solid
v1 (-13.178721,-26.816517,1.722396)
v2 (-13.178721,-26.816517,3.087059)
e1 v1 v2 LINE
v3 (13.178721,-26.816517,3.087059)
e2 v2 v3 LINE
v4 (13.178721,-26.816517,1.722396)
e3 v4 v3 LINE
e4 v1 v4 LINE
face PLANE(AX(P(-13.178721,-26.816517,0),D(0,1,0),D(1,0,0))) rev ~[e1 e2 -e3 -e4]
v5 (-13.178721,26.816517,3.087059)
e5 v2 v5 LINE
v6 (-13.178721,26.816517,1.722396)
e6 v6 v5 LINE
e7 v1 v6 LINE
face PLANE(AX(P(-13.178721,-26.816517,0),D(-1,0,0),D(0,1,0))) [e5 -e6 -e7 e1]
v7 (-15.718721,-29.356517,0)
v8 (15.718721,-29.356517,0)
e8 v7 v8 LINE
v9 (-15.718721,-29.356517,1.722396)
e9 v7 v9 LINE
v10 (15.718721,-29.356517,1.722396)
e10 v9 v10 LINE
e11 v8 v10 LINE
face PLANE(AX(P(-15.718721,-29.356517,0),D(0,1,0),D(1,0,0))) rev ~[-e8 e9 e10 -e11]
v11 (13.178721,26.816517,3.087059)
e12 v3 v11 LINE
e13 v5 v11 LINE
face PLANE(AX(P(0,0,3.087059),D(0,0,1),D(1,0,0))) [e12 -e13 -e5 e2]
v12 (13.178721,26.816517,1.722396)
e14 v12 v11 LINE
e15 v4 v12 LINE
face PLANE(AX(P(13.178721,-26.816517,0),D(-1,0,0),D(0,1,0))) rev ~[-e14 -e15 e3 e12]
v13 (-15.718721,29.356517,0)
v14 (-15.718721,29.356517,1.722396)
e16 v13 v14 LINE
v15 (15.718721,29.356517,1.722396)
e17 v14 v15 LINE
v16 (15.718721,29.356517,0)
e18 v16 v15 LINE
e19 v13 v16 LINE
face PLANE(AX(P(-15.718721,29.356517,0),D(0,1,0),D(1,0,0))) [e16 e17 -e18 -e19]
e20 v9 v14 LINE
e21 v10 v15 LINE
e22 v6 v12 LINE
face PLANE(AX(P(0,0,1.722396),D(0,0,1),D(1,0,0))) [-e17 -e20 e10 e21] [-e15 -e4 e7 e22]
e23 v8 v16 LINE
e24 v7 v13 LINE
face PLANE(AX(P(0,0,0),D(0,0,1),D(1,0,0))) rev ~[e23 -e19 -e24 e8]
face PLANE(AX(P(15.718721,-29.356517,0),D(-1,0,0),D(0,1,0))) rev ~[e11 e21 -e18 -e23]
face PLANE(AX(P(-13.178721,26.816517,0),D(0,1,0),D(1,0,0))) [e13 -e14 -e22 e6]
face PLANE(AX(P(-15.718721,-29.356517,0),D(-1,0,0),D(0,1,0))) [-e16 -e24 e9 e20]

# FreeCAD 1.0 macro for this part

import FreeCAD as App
import Part
import Sketcher

V = App.Vector

doc = App.newDocument("Part")
body = doc.addObject("PartDesign::Body", "Body")

# Sketch on XY plane
sketch1 = body.newObject("Sketcher::SketchObject", "Sketch")
sketch1.AttachmentSupport = (doc.getObject("XY_Plane"), [""])
sketch1.MapMode = "FlatFace"
sketch1.addGeometry(Part.LineSegment(V(-13, 27, 0), V(-13, -27, 0)), False)
sketch1.addGeometry(Part.LineSegment(V(-13, -27, 0), V(13, -27, 0)), False)
sketch1.addGeometry(Part.LineSegment(V(13, -27, 0), V(13, 27, 0)), False)
sketch1.addGeometry(Part.LineSegment(V(13, 27, 0), V(-13, 27, 0)), False)
sketch1.addConstraint(Sketcher.Constraint("Coincident", 0, 2, 1, 1))
sketch1.addConstraint(Sketcher.Constraint("Coincident", 1, 2, 2, 1))
sketch1.addConstraint(Sketcher.Constraint("Coincident", 2, 2, 3, 1))
sketch1.addConstraint(Sketcher.Constraint("Coincident", 3, 2, 0, 1))
sketch1.addConstraint(Sketcher.Constraint("Vertical", 0))
sketch1.addConstraint(Sketcher.Constraint("Horizontal", 1))
sketch1.addConstraint(Sketcher.Constraint("Vertical", 2))
sketch1.addConstraint(Sketcher.Constraint("Horizontal", 3))
sketch1.addConstraint(Sketcher.Constraint("Symmetric", 0, 2, 2, 2, -1, 1))
sketch1.addConstraint(Sketcher.Constraint("DistanceX", 1, 1, 1, 2, 26.357442))
sketch1.addConstraint(Sketcher.Constraint("DistanceY", 0, 2, 0, 1, 53.633034))
pad1 = body.newObject("PartDesign::Pad", "Pad")
pad1.Profile = sketch1
pad1.Length = 3.087059

# Sketch on XY plane
sketch2 = body.newObject("Sketcher::SketchObject", "Sketch001")
sketch2.AttachmentSupport = (doc.getObject("XY_Plane"), [""])
sketch2.MapMode = "FlatFace"
sketch2.addGeometry(Part.LineSegment(V(-16, 29, 0), V(-16, -29, 0)), False)
sketch2.addGeometry(Part.LineSegment(V(-16, -29, 0), V(16, -29, 0)), False)
sketch2.addGeometry(Part.LineSegment(V(16, -29, 0), V(16, 29, 0)), False)
sketch2.addGeometry(Part.LineSegment(V(16, 29, 0), V(-16, 29, 0)), False)
sketch2.addConstraint(Sketcher.Constraint("Coincident", 0, 2, 1, 1))
sketch2.addConstraint(Sketcher.Constraint("Coincident", 1, 2, 2, 1))
sketch2.addConstraint(Sketcher.Constraint("Coincident", 2, 2, 3, 1))
sketch2.addConstraint(Sketcher.Constraint("Coincident", 3, 2, 0, 1))
sketch2.addConstraint(Sketcher.Constraint("Vertical", 0))
sketch2.addConstraint(Sketcher.Constraint("Horizontal", 1))
sketch2.addConstraint(Sketcher.Constraint("Vertical", 2))
sketch2.addConstraint(Sketcher.Constraint("Horizontal", 3))
sketch2.addConstraint(Sketcher.Constraint("Symmetric", 0, 2, 2, 2, -1, 1))
sketch2.addConstraint(Sketcher.Constraint("DistanceX", 1, 1, 1, 2, 31.437442))
sketch2.addConstraint(Sketcher.Constraint("DistanceY", 0, 2, 0, 1, 58.713034))
pad2 = body.newObject("PartDesign::Pad", "Pad001")
pad2.Profile = sketch2
pad2.Length = 1.722396

doc.recompute()
